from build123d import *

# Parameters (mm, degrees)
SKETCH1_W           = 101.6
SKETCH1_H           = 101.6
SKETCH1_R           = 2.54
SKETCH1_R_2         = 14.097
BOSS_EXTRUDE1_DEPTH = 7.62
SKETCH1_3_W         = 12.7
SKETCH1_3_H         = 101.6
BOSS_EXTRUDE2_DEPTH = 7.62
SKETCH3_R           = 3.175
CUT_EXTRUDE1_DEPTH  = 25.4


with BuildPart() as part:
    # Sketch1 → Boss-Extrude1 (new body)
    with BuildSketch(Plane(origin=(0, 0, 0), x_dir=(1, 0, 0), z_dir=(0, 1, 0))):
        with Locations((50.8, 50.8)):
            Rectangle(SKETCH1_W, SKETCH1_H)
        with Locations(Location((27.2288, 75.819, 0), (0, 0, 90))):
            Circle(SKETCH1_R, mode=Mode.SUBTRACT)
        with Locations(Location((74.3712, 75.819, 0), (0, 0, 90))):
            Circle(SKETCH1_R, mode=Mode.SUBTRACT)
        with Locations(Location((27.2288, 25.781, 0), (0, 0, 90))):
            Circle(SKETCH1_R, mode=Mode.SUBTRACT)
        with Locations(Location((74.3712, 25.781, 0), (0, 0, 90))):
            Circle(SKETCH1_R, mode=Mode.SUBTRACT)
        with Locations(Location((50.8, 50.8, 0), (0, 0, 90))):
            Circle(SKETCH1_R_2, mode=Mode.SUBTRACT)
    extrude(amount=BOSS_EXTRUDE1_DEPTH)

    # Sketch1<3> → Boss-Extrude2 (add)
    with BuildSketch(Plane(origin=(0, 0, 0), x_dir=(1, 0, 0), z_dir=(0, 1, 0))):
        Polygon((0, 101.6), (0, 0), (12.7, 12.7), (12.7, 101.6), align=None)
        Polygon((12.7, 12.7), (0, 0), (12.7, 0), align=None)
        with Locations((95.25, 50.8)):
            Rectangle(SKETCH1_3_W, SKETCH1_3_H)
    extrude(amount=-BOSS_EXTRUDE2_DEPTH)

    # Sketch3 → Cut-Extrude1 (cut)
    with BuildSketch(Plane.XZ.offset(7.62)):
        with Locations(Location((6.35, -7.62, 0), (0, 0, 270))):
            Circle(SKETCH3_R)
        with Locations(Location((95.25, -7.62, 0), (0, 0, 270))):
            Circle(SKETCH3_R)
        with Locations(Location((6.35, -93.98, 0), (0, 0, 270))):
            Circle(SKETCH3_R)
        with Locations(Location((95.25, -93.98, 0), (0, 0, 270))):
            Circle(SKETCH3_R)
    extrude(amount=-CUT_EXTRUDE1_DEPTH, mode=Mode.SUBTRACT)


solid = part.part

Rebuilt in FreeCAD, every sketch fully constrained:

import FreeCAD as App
import Part
import Sketcher
Q = App.Units.Quantity


def add_polygon(sketch, points):
    """Adds a closed chain of lines whose ends are joined by coincident constraints."""
    first, n = sketch.GeometryCount, len(points)
    for a, b in zip(points, points[1:] + points[:1]):
        sketch.addGeometry(Part.LineSegment(App.Vector(*a, 0), App.Vector(*b, 0)), False)
    for i in range(n):
        sketch.addConstraint(Sketcher.Constraint("Coincident", first + i, 2, first + (i + 1) % n, 1))

doc = App.newDocument("Part")
body = doc.addObject("PartDesign::Body", "Body")

# Sketch on XZ plane
sketch1 = doc.addObject("Sketcher::SketchObject", "Sketch")
body.addObject(sketch1)
sketch1.AttachmentSupport = (doc.XZ_Plane, [""])
sketch1.MapMode = "FlatFace"
add_polygon(sketch1, [(0, -101.6), (0, 0), (101.6, 0), (101.6, -101.6)])  # lines 0-3
sketch1.addGeometry(Part.Circle(App.Vector(27.2, -25.8, 0), App.Vector(0, 0, 1), 2.5), False)  # 4
sketch1.addGeometry(Part.Circle(App.Vector(50.8, -50.8, 0), App.Vector(0, 0, 1), 14.1), False)  # 5
sketch1.addGeometry(Part.Circle(App.Vector(74.4, -25.8, 0), App.Vector(0, 0, 1), 2.5), False)  # 6
sketch1.addGeometry(Part.Circle(App.Vector(27.2, -75.8, 0), App.Vector(0, 0, 1), 2.5), False)  # 7
sketch1.addGeometry(Part.Circle(App.Vector(74.4, -75.8, 0), App.Vector(0, 0, 1), 2.5), False)  # 8
sketch1.addConstraint([
    Sketcher.Constraint("Vertical", 0),
    Sketcher.Constraint("Horizontal", 1),
    Sketcher.Constraint("Vertical", 2),
    Sketcher.Constraint("Horizontal", 3),
    Sketcher.Constraint("Coincident", 0, 2, -1, 1),
    Sketcher.Constraint("Equal", 4, 6),
    Sketcher.Constraint("Equal", 6, 7),
    Sketcher.Constraint("Equal", 7, 8),
    Sketcher.Constraint("Horizontal", 4, 3, 6, 3),
    Sketcher.Constraint("Horizontal", 7, 3, 8, 3),
    Sketcher.Constraint("Vertical", 4, 3, 7, 3),
    Sketcher.Constraint("Vertical", 6, 3, 8, 3),
    Sketcher.Constraint("Equal", 3, 0),
    Sketcher.Constraint("Diameter", 4, Q("0.2 in")),
    Sketcher.Constraint("Diameter", 5, Q("1.11 in")),
    Sketcher.Constraint("DistanceX", 1, 1, 1, 2, Q("4 in")),
    Sketcher.Constraint("DistanceX", -1, 1, 5, 3, Q("2 in")),
    Sketcher.Constraint("DistanceY", 5, 3, -1, 1, Q("2 in")),
    Sketcher.Constraint("DistanceY", 7, 3, 4, 3, Q("1.97 in")),
    Sketcher.Constraint("DistanceX", -1, 1, 4, 3, Q("1.072 in")),
    Sketcher.Constraint("DistanceY", 4, 3, -1, 1, Q("1.015 in")),
    Sketcher.Constraint("DistanceX", -1, 1, 6, 3, Q("2.928 in")),
])
pad1 = doc.addObject("PartDesign::Pad", "Pad")
body.addObject(pad1)
pad1.Profile = sketch1
pad1.Length = Q("0.3 in")
pad1.Reversed = True

# Sketch on XZ plane
sketch2 = doc.addObject("Sketcher::SketchObject", "Sketch001")
body.addObject(sketch2)
sketch2.AttachmentSupport = (doc.XZ_Plane, [""])
sketch2.MapMode = "FlatFace"
add_polygon(sketch2, [(0, -102), (0, 0), (13, 0), (13, -102)])  # lines 0-3
add_polygon(sketch2, [(89, -102), (89, 0), (102, 0), (102, -102)])  # lines 4-7
sketch2.addConstraint([
    Sketcher.Constraint("Vertical", 0),
    Sketcher.Constraint("Horizontal", 1),
    Sketcher.Constraint("Vertical", 2),
    Sketcher.Constraint("Horizontal", 3),
    Sketcher.Constraint("Vertical", 4),
    Sketcher.Constraint("Horizontal", 5),
    Sketcher.Constraint("Vertical", 6),
    Sketcher.Constraint("Horizontal", 7),
    Sketcher.Constraint("Coincident", 0, 2, -1, 1),
    Sketcher.Constraint("PointOnObject", 4, 2, -1),
    Sketcher.Constraint("Horizontal", 3, 2, 6, 2),
    Sketcher.Constraint("Equal", 3, 5),
    Sketcher.Constraint("DistanceY", 0, 1, 0, 2, Q("4 in")),
    Sketcher.Constraint("DistanceX", 1, 1, 1, 2, Q("0.5 in")),
    Sketcher.Constraint("DistanceX", -1, 1, 5, 2, Q("4 in")),
])
pad2 = doc.addObject("PartDesign::Pad", "Pad001")
body.addObject(pad2)
pad2.Profile = sketch2
pad2.Length = Q("0.3 in")

# Sketch on XZ plane
sketch3 = doc.addObject("Sketcher::SketchObject", "Sketch002")
body.addObject(sketch3)
sketch3.AttachmentSupport = (doc.XZ_Plane, [""])
sketch3.MapMode = "FlatFace"
sketch3.AttachmentOffset = App.Placement(App.Vector(0, 0, 0.3 * 25.4), App.Rotation())
sketch3.addGeometry([
    Part.Circle(App.Vector(6.3, -7.6, 0), App.Vector(0, 0, 1), 3.2),
    Part.Circle(App.Vector(95.2, -7.6, 0), App.Vector(0, 0, 1), 3.2),
    Part.Circle(App.Vector(6.3, -94, 0), App.Vector(0, 0, 1), 3.2),
    Part.Circle(App.Vector(95.2, -94, 0), App.Vector(0, 0, 1), 3.2),
], False)
sketch3.addConstraint([
    Sketcher.Constraint("Equal", 0, 1),
    Sketcher.Constraint("Equal", 1, 2),
    Sketcher.Constraint("Equal", 2, 3),
    Sketcher.Constraint("Horizontal", 0, 3, 1, 3),
    Sketcher.Constraint("Horizontal", 2, 3, 3, 3),
    Sketcher.Constraint("Vertical", 0, 3, 2, 3),
    Sketcher.Constraint("Vertical", 1, 3, 3, 3),
    Sketcher.Constraint("Diameter", 0, Q("0.25 in")),
    Sketcher.Constraint("DistanceY", 0, 3, -1, 1, Q("0.3 in")),
    Sketcher.Constraint("DistanceY", 2, 3, -1, 1, Q("3.7 in")),
    Sketcher.Constraint("DistanceX", 0, 3, 1, 3, Q("3.5 in")),
    Sketcher.Constraint("DistanceX", -1, 1, 0, 3, Q("0.25 in")),
])
pocket1 = doc.addObject("PartDesign::Pocket", "Pocket")
body.addObject(pocket1)
pocket1.Profile = sketch3
pocket1.Length = Q("1 in")

doc.recompute()
